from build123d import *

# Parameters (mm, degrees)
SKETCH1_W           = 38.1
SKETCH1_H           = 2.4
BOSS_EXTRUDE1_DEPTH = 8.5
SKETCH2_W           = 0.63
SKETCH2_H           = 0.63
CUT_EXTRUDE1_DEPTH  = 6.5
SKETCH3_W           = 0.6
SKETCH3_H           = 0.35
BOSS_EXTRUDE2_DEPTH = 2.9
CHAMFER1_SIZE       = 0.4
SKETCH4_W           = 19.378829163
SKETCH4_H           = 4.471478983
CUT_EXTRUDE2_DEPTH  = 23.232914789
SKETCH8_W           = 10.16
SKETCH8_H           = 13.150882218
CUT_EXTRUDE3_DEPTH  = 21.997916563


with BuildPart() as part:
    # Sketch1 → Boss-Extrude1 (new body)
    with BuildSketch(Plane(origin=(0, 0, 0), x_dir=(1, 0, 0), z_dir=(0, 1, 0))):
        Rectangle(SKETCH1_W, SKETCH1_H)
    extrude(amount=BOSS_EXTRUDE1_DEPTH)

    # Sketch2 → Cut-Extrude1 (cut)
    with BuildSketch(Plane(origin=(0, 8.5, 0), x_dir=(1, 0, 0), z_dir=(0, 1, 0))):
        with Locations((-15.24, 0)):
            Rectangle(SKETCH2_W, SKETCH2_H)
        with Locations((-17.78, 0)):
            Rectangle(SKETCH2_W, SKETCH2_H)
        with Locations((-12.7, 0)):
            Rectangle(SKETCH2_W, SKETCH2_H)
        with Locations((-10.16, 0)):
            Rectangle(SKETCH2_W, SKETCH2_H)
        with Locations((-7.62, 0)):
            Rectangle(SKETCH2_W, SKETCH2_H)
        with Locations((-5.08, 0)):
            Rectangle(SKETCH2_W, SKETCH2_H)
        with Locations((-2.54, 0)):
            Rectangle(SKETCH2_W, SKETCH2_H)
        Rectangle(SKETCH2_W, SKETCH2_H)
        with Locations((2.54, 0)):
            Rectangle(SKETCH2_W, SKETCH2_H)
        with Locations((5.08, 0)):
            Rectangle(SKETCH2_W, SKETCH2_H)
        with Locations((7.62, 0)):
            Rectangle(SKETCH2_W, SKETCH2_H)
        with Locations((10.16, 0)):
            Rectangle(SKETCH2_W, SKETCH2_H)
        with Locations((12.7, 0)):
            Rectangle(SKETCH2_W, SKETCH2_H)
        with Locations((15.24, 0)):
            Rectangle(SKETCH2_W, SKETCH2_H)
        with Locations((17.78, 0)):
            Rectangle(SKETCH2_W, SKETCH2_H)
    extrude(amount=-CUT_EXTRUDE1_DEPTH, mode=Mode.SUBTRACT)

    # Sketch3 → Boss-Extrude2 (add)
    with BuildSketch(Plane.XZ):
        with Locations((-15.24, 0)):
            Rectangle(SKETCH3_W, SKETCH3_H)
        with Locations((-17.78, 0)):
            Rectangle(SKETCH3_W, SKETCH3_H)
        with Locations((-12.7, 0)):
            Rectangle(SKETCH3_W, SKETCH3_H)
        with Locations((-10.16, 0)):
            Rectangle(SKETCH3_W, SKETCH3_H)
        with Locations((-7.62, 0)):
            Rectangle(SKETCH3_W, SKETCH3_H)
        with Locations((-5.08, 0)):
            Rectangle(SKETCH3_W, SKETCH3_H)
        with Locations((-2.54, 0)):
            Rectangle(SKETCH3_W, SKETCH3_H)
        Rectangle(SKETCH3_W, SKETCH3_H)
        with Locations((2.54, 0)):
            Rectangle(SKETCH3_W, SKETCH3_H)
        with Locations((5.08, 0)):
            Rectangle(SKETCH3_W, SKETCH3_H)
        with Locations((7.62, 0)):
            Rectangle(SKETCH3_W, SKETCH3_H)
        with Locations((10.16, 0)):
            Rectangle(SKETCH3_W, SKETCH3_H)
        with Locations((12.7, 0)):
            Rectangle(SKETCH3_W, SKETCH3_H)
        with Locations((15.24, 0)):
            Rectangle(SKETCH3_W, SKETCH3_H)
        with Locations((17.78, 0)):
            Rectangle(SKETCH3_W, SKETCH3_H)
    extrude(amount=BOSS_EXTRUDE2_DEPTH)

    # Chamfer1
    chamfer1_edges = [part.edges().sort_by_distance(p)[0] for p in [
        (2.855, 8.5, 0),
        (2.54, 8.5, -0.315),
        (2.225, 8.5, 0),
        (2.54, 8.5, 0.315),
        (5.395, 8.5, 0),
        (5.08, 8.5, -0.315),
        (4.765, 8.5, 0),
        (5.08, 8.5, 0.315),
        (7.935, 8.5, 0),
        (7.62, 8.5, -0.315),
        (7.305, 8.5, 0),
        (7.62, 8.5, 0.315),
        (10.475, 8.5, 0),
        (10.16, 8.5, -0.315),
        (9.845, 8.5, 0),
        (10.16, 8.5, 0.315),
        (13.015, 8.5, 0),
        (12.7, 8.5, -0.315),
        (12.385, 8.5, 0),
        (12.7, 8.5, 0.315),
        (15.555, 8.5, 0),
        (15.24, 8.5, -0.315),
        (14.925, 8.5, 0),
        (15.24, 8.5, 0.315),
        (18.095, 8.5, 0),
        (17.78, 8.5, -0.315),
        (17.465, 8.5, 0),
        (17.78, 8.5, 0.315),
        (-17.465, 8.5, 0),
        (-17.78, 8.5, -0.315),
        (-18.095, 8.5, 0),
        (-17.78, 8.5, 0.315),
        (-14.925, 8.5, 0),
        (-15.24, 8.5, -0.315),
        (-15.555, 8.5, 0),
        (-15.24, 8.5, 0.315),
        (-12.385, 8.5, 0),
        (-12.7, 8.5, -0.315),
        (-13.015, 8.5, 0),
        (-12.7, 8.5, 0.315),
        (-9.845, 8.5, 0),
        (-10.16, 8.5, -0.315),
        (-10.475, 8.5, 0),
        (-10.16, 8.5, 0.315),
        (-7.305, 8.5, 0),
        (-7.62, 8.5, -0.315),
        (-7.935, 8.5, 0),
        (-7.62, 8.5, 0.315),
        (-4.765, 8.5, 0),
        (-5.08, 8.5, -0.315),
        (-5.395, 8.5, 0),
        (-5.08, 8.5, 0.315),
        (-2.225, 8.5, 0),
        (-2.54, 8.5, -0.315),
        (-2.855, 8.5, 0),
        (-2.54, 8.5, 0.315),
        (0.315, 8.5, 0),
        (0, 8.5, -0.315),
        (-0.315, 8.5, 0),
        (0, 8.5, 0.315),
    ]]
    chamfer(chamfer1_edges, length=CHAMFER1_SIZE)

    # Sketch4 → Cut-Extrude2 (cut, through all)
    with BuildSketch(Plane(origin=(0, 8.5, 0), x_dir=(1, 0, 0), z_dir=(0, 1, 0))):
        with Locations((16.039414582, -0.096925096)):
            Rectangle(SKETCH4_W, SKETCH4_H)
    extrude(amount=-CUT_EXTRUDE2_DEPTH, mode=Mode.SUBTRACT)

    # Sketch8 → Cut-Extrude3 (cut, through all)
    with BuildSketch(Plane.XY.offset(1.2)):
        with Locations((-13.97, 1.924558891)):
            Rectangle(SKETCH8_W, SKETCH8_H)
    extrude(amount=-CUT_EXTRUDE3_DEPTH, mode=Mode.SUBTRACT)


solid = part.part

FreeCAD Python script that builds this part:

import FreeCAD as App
import Part
import Sketcher
from FreeCAD import Vector
Q = App.Units.Quantity


def edges_at(feature, points):
    """Names of the edges that pass closest to the given points."""
    edges = feature.Shape.Edges
    near = lambda p: min(range(len(edges)), key=lambda i: edges[i].distToShape(Part.Vertex(*p))[0])
    return sorted({f"Edge{near(p) + 1}" for p in points})


def add_polygon(sketch, points):
    """Adds a closed chain of lines whose ends are joined by coincident constraints."""
    first, n = sketch.GeometryCount, len(points)
    for a, b in zip(points, points[1:] + points[:1]):
        sketch.addGeometry(Part.LineSegment(App.Vector(*a, 0), App.Vector(*b, 0)), False)
    for i in range(n):
        sketch.addConstraint(Sketcher.Constraint("Coincident", first + i, 2, first + (i + 1) % n, 1))

doc = App.newDocument("Part")
params = doc.addObject("Spreadsheet::Sheet", "Params")
for row, (alias, value) in enumerate([
    ("sketch1_width", "38.1 mm"),
    ("sketch1_height", "2.4 mm"),
    ("pad1_length", "8.5 mm"),
    ("sketch2_width", "0.63 mm"),
    ("pocket1_length", "6.5 mm"),
    ("sketch3_width", "0.6 mm"),
    ("sketch3_height", "0.35 mm"),
    ("pad2_length", "2.9 mm"),
    ("chamfer_size", "0.4 mm"),
    ("sketch5_width", "10.16 mm"),
], start=1):
    params.set(f"A{row}", alias)
    params.set(f"B{row}", "=" + value)
    params.setAlias(f"B{row}", alias)

body = doc.addObject("PartDesign::Body", "Body")

# Sketch on XZ plane
sketch1 = body.newObject("Sketcher::SketchObject", "Sketch")
sketch1.AttachmentSupport = (doc.getObject("XZ_Plane"), [""])
sketch1.MapMode = "FlatFace"
add_polygon(sketch1, [(-19.1, -1.2), (-19.1, 1.2), (19.1, 1.2), (19.1, -1.2)])  # lines 0-3
sketch1.addConstraint(Sketcher.Constraint("Vertical", 0))
sketch1.addConstraint(Sketcher.Constraint("Horizontal", 1))
sketch1.addConstraint(Sketcher.Constraint("Vertical", 2))
sketch1.addConstraint(Sketcher.Constraint("Horizontal", 3))
sketch1.addConstraint(Sketcher.Constraint("Symmetric", 0, 2, 2, 2, -1, 1))
sketch1.addConstraint(Sketcher.Constraint("DistanceX", 1, 1, 1, 2, Q("38.1 mm")))
sketch1.addConstraint(Sketcher.Constraint("DistanceY", 0, 1, 0, 2, Q("2.4 mm")))
sketch1.setExpression("Constraints[9]", "Params.sketch1_width")
sketch1.setExpression("Constraints[10]", "Params.sketch1_height")
pad1 = body.newObject("PartDesign::Pad", "Pad")
pad1.Profile = sketch1
pad1.setExpression("Length", "Params.pad1_length")
pad1.Reversed = True

# Sketch on XZ plane
sketch2 = body.newObject("Sketcher::SketchObject", "Sketch001")
sketch2.AttachmentSupport = (doc.getObject("XZ_Plane"), [""])
sketch2.MapMode = "FlatFace"
sketch2.AttachmentOffset = App.Placement(Vector(0, 0, -8.5), App.Rotation())
add_polygon(sketch2, [(-15.6, -0.3), (-15.6, 0.3), (-14.9, 0.3), (-14.9, -0.3)])  # lines 0-3
add_polygon(sketch2, [(-18.1, -0.3), (-18.1, 0.3), (-17.5, 0.3), (-17.5, -0.3)])  # lines 4-7
add_polygon(sketch2, [(-13, -0.3), (-13, 0.3), (-12.4, 0.3), (-12.4, -0.3)])  # lines 8-11
add_polygon(sketch2, [(-10.5, -0.3), (-10.5, 0.3), (-9.8, 0.3), (-9.8, -0.3)])  # lines 12-15
add_polygon(sketch2, [(-7.9, -0.3), (-7.9, 0.3), (-7.3, 0.3), (-7.3, -0.3)])  # lines 16-19
add_polygon(sketch2, [(-5.4, -0.3), (-5.4, 0.3), (-4.8, 0.3), (-4.8, -0.3)])  # lines 20-23
add_polygon(sketch2, [(-2.9, -0.3), (-2.9, 0.3), (-2.2, 0.3), (-2.2, -0.3)])  # lines 24-27
add_polygon(sketch2, [(-0.3, -0.3), (-0.3, 0.3), (0.3, 0.3), (0.3, -0.3)])  # lines 28-31
add_polygon(sketch2, [(2.2, -0.3), (2.2, 0.3), (2.9, 0.3), (2.9, -0.3)])  # lines 32-35
add_polygon(sketch2, [(4.8, -0.3), (4.8, 0.3), (5.4, 0.3), (5.4, -0.3)])  # lines 36-39
add_polygon(sketch2, [(7.3, -0.3), (7.3, 0.3), (7.9, 0.3), (7.9, -0.3)])  # lines 40-43
add_polygon(sketch2, [(9.8, -0.3), (9.8, 0.3), (10.5, 0.3), (10.5, -0.3)])  # lines 44-47
add_polygon(sketch2, [(12.4, -0.3), (12.4, 0.3), (13, 0.3), (13, -0.3)])  # lines 48-51
add_polygon(sketch2, [(14.9, -0.3), (14.9, 0.3), (15.6, 0.3), (15.6, -0.3)])  # lines 52-55
add_polygon(sketch2, [(17.5, -0.3), (17.5, 0.3), (18.1, 0.3), (18.1, -0.3)])  # lines 56-59
sketch2.addConstraint(Sketcher.Constraint("Vertical", 0))
sketch2.addConstraint(Sketcher.Constraint("Horizontal", 1))
sketch2.addConstraint(Sketcher.Constraint("Vertical", 2))
sketch2.addConstraint(Sketcher.Constraint("Horizontal", 3))
sketch2.addConstraint(Sketcher.Constraint("Vertical", 4))
sketch2.addConstraint(Sketcher.Constraint("Horizontal", 5))
sketch2.addConstraint(Sketcher.Constraint("Vertical", 6))
sketch2.addConstraint(Sketcher.Constraint("Horizontal", 7))
sketch2.addConstraint(Sketcher.Constraint("Vertical", 8))
sketch2.addConstraint(Sketcher.Constraint("Horizontal", 9))
sketch2.addConstraint(Sketcher.Constraint("Vertical", 10))
sketch2.addConstraint(Sketcher.Constraint("Horizontal", 11))
sketch2.addConstraint(Sketcher.Constraint("Vertical", 12))
sketch2.addConstraint(Sketcher.Constraint("Horizontal", 13))
sketch2.addConstraint(Sketcher.Constraint("Vertical", 14))
sketch2.addConstraint(Sketcher.Constraint("Horizontal", 15))
sketch2.addConstraint(Sketcher.Constraint("Vertical", 16))
sketch2.addConstraint(Sketcher.Constraint("Horizontal", 17))
sketch2.addConstraint(Sketcher.Constraint("Vertical", 18))
sketch2.addConstraint(Sketcher.Constraint("Horizontal", 19))
sketch2.addConstraint(Sketcher.Constraint("Vertical", 20))
sketch2.addConstraint(Sketcher.Constraint("Horizontal", 21))
sketch2.addConstraint(Sketcher.Constraint("Vertical", 22))
sketch2.addConstraint(Sketcher.Constraint("Horizontal", 23))
sketch2.addConstraint(Sketcher.Constraint("Vertical", 24))
sketch2.addConstraint(Sketcher.Constraint("Horizontal", 25))
sketch2.addConstraint(Sketcher.Constraint("Vertical", 26))
sketch2.addConstraint(Sketcher.Constraint("Horizontal", 27))
sketch2.addConstraint(Sketcher.Constraint("Vertical", 28))
sketch2.addConstraint(Sketcher.Constraint("Horizontal", 29))
sketch2.addConstraint(Sketcher.Constraint("Vertical", 30))
sketch2.addConstraint(Sketcher.Constraint("Horizontal", 31))
sketch2.addConstraint(Sketcher.Constraint("Vertical", 32))
sketch2.addConstraint(Sketcher.Constraint("Horizontal", 33))
sketch2.addConstraint(Sketcher.Constraint("Vertical", 34))
sketch2.addConstraint(Sketcher.Constraint("Horizontal", 35))
sketch2.addConstraint(Sketcher.Constraint("Vertical", 36))
sketch2.addConstraint(Sketcher.Constraint("Horizontal", 37))
sketch2.addConstraint(Sketcher.Constraint("Vertical", 38))
sketch2.addConstraint(Sketcher.Constraint("Horizontal", 39))
sketch2.addConstraint(Sketcher.Constraint("Vertical", 40))
sketch2.addConstraint(Sketcher.Constraint("Horizontal", 41))
sketch2.addConstraint(Sketcher.Constraint("Vertical", 42))
sketch2.addConstraint(Sketcher.Constraint("Horizontal", 43))
sketch2.addConstraint(Sketcher.Constraint("Vertical", 44))
sketch2.addConstraint(Sketcher.Constraint("Horizontal", 45))
sketch2.addConstraint(Sketcher.Constraint("Vertical", 46))
sketch2.addConstraint(Sketcher.Constraint("Horizontal", 47))
sketch2.addConstraint(Sketcher.Constraint("Vertical", 48))
sketch2.addConstraint(Sketcher.Constraint("Horizontal", 49))
sketch2.addConstraint(Sketcher.Constraint("Vertical", 50))
sketch2.addConstraint(Sketcher.Constraint("Horizontal", 51))
sketch2.addConstraint(Sketcher.Constraint("Vertical", 52))
sketch2.addConstraint(Sketcher.Constraint("Horizontal", 53))
sketch2.addConstraint(Sketcher.Constraint("Vertical", 54))
sketch2.addConstraint(Sketcher.Constraint("Horizontal", 55))
sketch2.addConstraint(Sketcher.Constraint("Vertical", 56))
sketch2.addConstraint(Sketcher.Constraint("Horizontal", 57))
sketch2.addConstraint(Sketcher.Constraint("Vertical", 58))
sketch2.addConstraint(Sketcher.Constraint("Horizontal", 59))
sketch2.addConstraint(Sketcher.Constraint("Symmetric", 28, 2, 30, 2, -1, 1))
sketch2.addConstraint(Sketcher.Constraint("Symmetric", 26, 2, 32, 2, -1, 1))
sketch2.addConstraint(Sketcher.Constraint("Symmetric", 24, 2, 34, 2, -1, 1))
sketch2.addConstraint(Sketcher.Constraint("Symmetric", 22, 2, 36, 2, -1, 1))
sketch2.addConstraint(Sketcher.Constraint("Symmetric", 20, 2, 38, 2, -1, 1))
sketch2.addConstraint(Sketcher.Constraint("Symmetric", 18, 2, 40, 2, -1, 1))
sketch2.addConstraint(Sketcher.Constraint("Symmetric", 16, 2, 42, 2, -1, 1))
sketch2.addConstraint(Sketcher.Constraint("Symmetric", 14, 2, 44, 2, -1, 1))
sketch2.addConstraint(Sketcher.Constraint("Symmetric", 12, 2, 46, 2, -1, 1))
sketch2.addConstraint(Sketcher.Constraint("Symmetric", 10, 2, 48, 2, -1, 1))
sketch2.addConstraint(Sketcher.Constraint("Symmetric", 8, 2, 50, 2, -1, 1))
sketch2.addConstraint(Sketcher.Constraint("Symmetric", 2, 2, 52, 2, -1, 1))
sketch2.addConstraint(Sketcher.Constraint("Symmetric", 0, 2, 54, 2, -1, 1))
sketch2.addConstraint(Sketcher.Constraint("Symmetric", 6, 2, 56, 2, -1, 1))
sketch2.addConstraint(Sketcher.Constraint("Symmetric", 4, 2, 58, 2, -1, 1))
sketch2.addConstraint(Sketcher.Constraint("Horizontal", 1, 2, 4, 2))
sketch2.addConstraint(Sketcher.Constraint("Horizontal", 3, 2, 6, 2))
sketch2.addConstraint(Sketcher.Constraint("Horizontal", 5, 2, 8, 2))
sketch2.addConstraint(Sketcher.Constraint("Horizontal", 7, 2, 10, 2))
sketch2.addConstraint(Sketcher.Constraint("Horizontal", 9, 2, 12, 2))
sketch2.addConstraint(Sketcher.Constraint("Horizontal", 11, 2, 14, 2))
sketch2.addConstraint(Sketcher.Constraint("Horizontal", 13, 2, 16, 2))
sketch2.addConstraint(Sketcher.Constraint("Horizontal", 15, 2, 18, 2))
sketch2.addConstraint(Sketcher.Constraint("Horizontal", 17, 2, 20, 2))
sketch2.addConstraint(Sketcher.Constraint("Horizontal", 19, 2, 22, 2))
sketch2.addConstraint(Sketcher.Constraint("Horizontal", 21, 2, 24, 2))
sketch2.addConstraint(Sketcher.Constraint("Horizontal", 23, 2, 26, 2))
sketch2.addConstraint(Sketcher.Constraint("Horizontal", 25, 2, 28, 2))
sketch2.addConstraint(Sketcher.Constraint("Horizontal", 27, 2, 30, 2))
sketch2.addConstraint(Sketcher.Constraint("Equal", 3, 5))
sketch2.addConstraint(Sketcher.Constraint("Equal", 7, 9))
sketch2.addConstraint(Sketcher.Constraint("Equal", 11, 13))
sketch2.addConstraint(Sketcher.Constraint("Equal", 15, 17))
sketch2.addConstraint(Sketcher.Constraint("Equal", 19, 21))
sketch2.addConstraint(Sketcher.Constraint("Equal", 23, 25))
sketch2.addConstraint(Sketcher.Constraint("Equal", 27, 29))
sketch2.addConstraint(Sketcher.Constraint("Equal", 59, 0))
sketch2.addConstraint(Sketcher.Constraint("DistanceX", 1, 1, 1, 2, Q("0.63 mm")))
sketch2.addConstraint(Sketcher.Constraint("DistanceX", 4, 2, 0, 2, Q("2.54 mm")))
sketch2.addConstraint(Sketcher.Constraint("DistanceX", 1, 2, 8, 2, Q("1.91 mm")))
sketch2.addConstraint(Sketcher.Constraint("DistanceX", 9, 2, 12, 2, Q("1.91 mm")))
sketch2.addConstraint(Sketcher.Constraint("DistanceX", 13, 2, 16, 2, Q("1.91 mm")))
sketch2.addConstraint(Sketcher.Constraint("DistanceX", 17, 2, 20, 2, Q("1.91 mm")))
sketch2.addConstraint(Sketcher.Constraint("DistanceX", 21, 2, 24, 2, Q("1.91 mm")))
sketch2.addConstraint(Sketcher.Constraint("DistanceX", 25, 2, 28, 2, Q("1.91 mm")))
sketch2.setExpression("Constraints[157]", "Params.sketch2_width")
pocket1 = body.newObject("PartDesign::Pocket", "Pocket")
pocket1.Profile = sketch2
pocket1.setExpression("Length", "Params.pocket1_length")
pocket1.Reversed = True

# Sketch on XZ plane
sketch3 = body.newObject("Sketcher::SketchObject", "Sketch002")
sketch3.AttachmentSupport = (doc.getObject("XZ_Plane"), [""])
sketch3.MapMode = "FlatFace"
add_polygon(sketch3, [(-15.54, 0.17), (-15.54, -0.17), (-14.94, -0.17), (-14.94, 0.17)])  # lines 0-3
add_polygon(sketch3, [(-18.08, 0.17), (-18.08, -0.17), (-17.48, -0.17), (-17.48, 0.17)])  # lines 4-7
add_polygon(sketch3, [(-13, 0.17), (-13, -0.17), (-12.4, -0.17), (-12.4, 0.17)])  # lines 8-11
add_polygon(sketch3, [(-10.46, 0.17), (-10.46, -0.17), (-9.86, -0.17), (-9.86, 0.17)])  # lines 12-15
add_polygon(sketch3, [(-7.92, 0.17), (-7.92, -0.17), (-7.32, -0.17), (-7.32, 0.17)])  # lines 16-19
add_polygon(sketch3, [(-5.38, 0.17), (-5.38, -0.17), (-4.78, -0.17), (-4.78, 0.17)])  # lines 20-23
add_polygon(sketch3, [(-2.84, 0.17), (-2.84, -0.17), (-2.24, -0.17), (-2.24, 0.17)])  # lines 24-27
add_polygon(sketch3, [(-0.3, 0.17), (-0.3, -0.17), (0.3, -0.17), (0.3, 0.17)])  # lines 28-31
add_polygon(sketch3, [(2.24, 0.17), (2.24, -0.17), (2.84, -0.17), (2.84, 0.17)])  # lines 32-35
add_polygon(sketch3, [(4.78, 0.17), (4.78, -0.17), (5.38, -0.17), (5.38, 0.17)])  # lines 36-39
add_polygon(sketch3, [(7.32, 0.17), (7.32, -0.17), (7.92, -0.17), (7.92, 0.17)])  # lines 40-43
add_polygon(sketch3, [(9.86, 0.17), (9.86, -0.17), (10.46, -0.17), (10.46, 0.17)])  # lines 44-47
add_polygon(sketch3, [(12.4, 0.17), (12.4, -0.17), (13, -0.17), (13, 0.17)])  # lines 48-51
add_polygon(sketch3, [(14.94, 0.17), (14.94, -0.17), (15.54, -0.17), (15.54, 0.17)])  # lines 52-55
add_polygon(sketch3, [(17.48, 0.17), (17.48, -0.17), (18.08, -0.17), (18.08, 0.17)])  # lines 56-59
sketch3.addConstraint(Sketcher.Constraint("Vertical", 0))
sketch3.addConstraint(Sketcher.Constraint("Horizontal", 1))
sketch3.addConstraint(Sketcher.Constraint("Vertical", 2))
sketch3.addConstraint(Sketcher.Constraint("Horizontal", 3))
sketch3.addConstraint(Sketcher.Constraint("Vertical", 4))
sketch3.addConstraint(Sketcher.Constraint("Horizontal", 5))
sketch3.addConstraint(Sketcher.Constraint("Vertical", 6))
sketch3.addConstraint(Sketcher.Constraint("Horizontal", 7))
sketch3.addConstraint(Sketcher.Constraint("Vertical", 8))
sketch3.addConstraint(Sketcher.Constraint("Horizontal", 9))
sketch3.addConstraint(Sketcher.Constraint("Vertical", 10))
sketch3.addConstraint(Sketcher.Constraint("Horizontal", 11))
sketch3.addConstraint(Sketcher.Constraint("Vertical", 12))
sketch3.addConstraint(Sketcher.Constraint("Horizontal", 13))
sketch3.addConstraint(Sketcher.Constraint("Vertical", 14))
sketch3.addConstraint(Sketcher.Constraint("Horizontal", 15))
sketch3.addConstraint(Sketcher.Constraint("Vertical", 16))
sketch3.addConstraint(Sketcher.Constraint("Horizontal", 17))
sketch3.addConstraint(Sketcher.Constraint("Vertical", 18))
sketch3.addConstraint(Sketcher.Constraint("Horizontal", 19))
sketch3.addConstraint(Sketcher.Constraint("Vertical", 20))
sketch3.addConstraint(Sketcher.Constraint("Horizontal", 21))
sketch3.addConstraint(Sketcher.Constraint("Vertical", 22))
sketch3.addConstraint(Sketcher.Constraint("Horizontal", 23))
sketch3.addConstraint(Sketcher.Constraint("Vertical", 24))
sketch3.addConstraint(Sketcher.Constraint("Horizontal", 25))
sketch3.addConstraint(Sketcher.Constraint("Vertical", 26))
sketch3.addConstraint(Sketcher.Constraint("Horizontal", 27))
sketch3.addConstraint(Sketcher.Constraint("Vertical", 28))
sketch3.addConstraint(Sketcher.Constraint("Horizontal", 29))
sketch3.addConstraint(Sketcher.Constraint("Vertical", 30))
sketch3.addConstraint(Sketcher.Constraint("Horizontal", 31))
sketch3.addConstraint(Sketcher.Constraint("Vertical", 32))
sketch3.addConstraint(Sketcher.Constraint("Horizontal", 33))
sketch3.addConstraint(Sketcher.Constraint("Vertical", 34))
sketch3.addConstraint(Sketcher.Constraint("Horizontal", 35))
sketch3.addConstraint(Sketcher.Constraint("Vertical", 36))
sketch3.addConstraint(Sketcher.Constraint("Horizontal", 37))
sketch3.addConstraint(Sketcher.Constraint("Vertical", 38))
sketch3.addConstraint(Sketcher.Constraint("Horizontal", 39))
sketch3.addConstraint(Sketcher.Constraint("Vertical", 40))
sketch3.addConstraint(Sketcher.Constraint("Horizontal", 41))
sketch3.addConstraint(Sketcher.Constraint("Vertical", 42))
sketch3.addConstraint(Sketcher.Constraint("Horizontal", 43))
sketch3.addConstraint(Sketcher.Constraint("Vertical", 44))
sketch3.addConstraint(Sketcher.Constraint("Horizontal", 45))
sketch3.addConstraint(Sketcher.Constraint("Vertical", 46))
sketch3.addConstraint(Sketcher.Constraint("Horizontal", 47))
sketch3.addConstraint(Sketcher.Constraint("Vertical", 48))
sketch3.addConstraint(Sketcher.Constraint("Horizontal", 49))
sketch3.addConstraint(Sketcher.Constraint("Vertical", 50))
sketch3.addConstraint(Sketcher.Constraint("Horizontal", 51))
sketch3.addConstraint(Sketcher.Constraint("Vertical", 52))
sketch3.addConstraint(Sketcher.Constraint("Horizontal", 53))
sketch3.addConstraint(Sketcher.Constraint("Vertical", 54))
sketch3.addConstraint(Sketcher.Constraint("Horizontal", 55))
sketch3.addConstraint(Sketcher.Constraint("Vertical", 56))
sketch3.addConstraint(Sketcher.Constraint("Horizontal", 57))
sketch3.addConstraint(Sketcher.Constraint("Vertical", 58))
sketch3.addConstraint(Sketcher.Constraint("Horizontal", 59))
sketch3.addConstraint(Sketcher.Constraint("Symmetric", 28, 2, 30, 2, -1, 1))
sketch3.addConstraint(Sketcher.Constraint("Symmetric", 26, 2, 32, 2, -1, 1))
sketch3.addConstraint(Sketcher.Constraint("Symmetric", 24, 2, 34, 2, -1, 1))
sketch3.addConstraint(Sketcher.Constraint("Symmetric", 22, 2, 36, 2, -1, 1))
sketch3.addConstraint(Sketcher.Constraint("Symmetric", 20, 2, 38, 2, -1, 1))
sketch3.addConstraint(Sketcher.Constraint("Symmetric", 18, 2, 40, 2, -1, 1))
sketch3.addConstraint(Sketcher.Constraint("Symmetric", 16, 2, 42, 2, -1, 1))
sketch3.addConstraint(Sketcher.Constraint("Symmetric", 14, 2, 44, 2, -1, 1))
sketch3.addConstraint(Sketcher.Constraint("Symmetric", 12, 2, 46, 2, -1, 1))
sketch3.addConstraint(Sketcher.Constraint("Symmetric", 10, 2, 48, 2, -1, 1))
sketch3.addConstraint(Sketcher.Constraint("Symmetric", 8, 2, 50, 2, -1, 1))
sketch3.addConstraint(Sketcher.Constraint("Symmetric", 2, 2, 52, 2, -1, 1))
sketch3.addConstraint(Sketcher.Constraint("Symmetric", 0, 2, 54, 2, -1, 1))
sketch3.addConstraint(Sketcher.Constraint("Symmetric", 6, 2, 56, 2, -1, 1))
sketch3.addConstraint(Sketcher.Constraint("Symmetric", 4, 2, 58, 2, -1, 1))
sketch3.addConstraint(Sketcher.Constraint("Horizontal", 1, 2, 4, 2))
sketch3.addConstraint(Sketcher.Constraint("Horizontal", 3, 2, 6, 2))
sketch3.addConstraint(Sketcher.Constraint("Horizontal", 5, 2, 8, 2))
sketch3.addConstraint(Sketcher.Constraint("Horizontal", 7, 2, 10, 2))
sketch3.addConstraint(Sketcher.Constraint("Horizontal", 9, 2, 12, 2))
sketch3.addConstraint(Sketcher.Constraint("Horizontal", 11, 2, 14, 2))
sketch3.addConstraint(Sketcher.Constraint("Horizontal", 13, 2, 16, 2))
sketch3.addConstraint(Sketcher.Constraint("Horizontal", 15, 2, 18, 2))
sketch3.addConstraint(Sketcher.Constraint("Horizontal", 17, 2, 20, 2))
sketch3.addConstraint(Sketcher.Constraint("Horizontal", 19, 2, 22, 2))
sketch3.addConstraint(Sketcher.Constraint("Horizontal", 21, 2, 24, 2))
sketch3.addConstraint(Sketcher.Constraint("Horizontal", 23, 2, 26, 2))
sketch3.addConstraint(Sketcher.Constraint("Horizontal", 25, 2, 28, 2))
sketch3.addConstraint(Sketcher.Constraint("Horizontal", 27, 2, 30, 2))
sketch3.addConstraint(Sketcher.Constraint("Equal", 3, 5))
sketch3.addConstraint(Sketcher.Constraint("Equal", 7, 9))
sketch3.addConstraint(Sketcher.Constraint("Equal", 11, 13))
sketch3.addConstraint(Sketcher.Constraint("Equal", 15, 17))
sketch3.addConstraint(Sketcher.Constraint("Equal", 19, 21))
sketch3.addConstraint(Sketcher.Constraint("Equal", 23, 25))
sketch3.addConstraint(Sketcher.Constraint("Equal", 27, 29))
sketch3.addConstraint(Sketcher.Constraint("DistanceX", 1, 1, 1, 2, Q("0.6 mm")))
sketch3.addConstraint(Sketcher.Constraint("DistanceX", 8, 2, -1, 1, Q("13 mm")))
sketch3.addConstraint(Sketcher.Constraint("DistanceY", 0, 2, 0, 1, Q("0.35 mm")))
sketch3.addConstraint(Sketcher.Constraint("DistanceX", 0, 2, -1, 1, Q("15.54 mm")))
sketch3.addConstraint(Sketcher.Constraint("DistanceX", 4, 2, -1, 1, Q("18.08 mm")))
sketch3.addConstraint(Sketcher.Constraint("DistanceX", 12, 2, -1, 1, Q("10.46 mm")))
sketch3.addConstraint(Sketcher.Constraint("DistanceX", 16, 2, -1, 1, Q("7.92 mm")))
sketch3.addConstraint(Sketcher.Constraint("DistanceX", 20, 2, -1, 1, Q("5.38 mm")))
sketch3.addConstraint(Sketcher.Constraint("DistanceX", 24, 2, -1, 1, Q("2.84 mm")))
sketch3.setExpression("Constraints[156]", "Params.sketch3_width")
sketch3.setExpression("Constraints[158]", "Params.sketch3_height")
pad2 = body.newObject("PartDesign::Pad", "Pad001")
pad2.Profile = sketch3
pad2.setExpression("Length", "Params.pad2_length")
doc.recompute()

chamfer = body.newObject("PartDesign::Chamfer", "Chamfer")
chamfer.Base = (pad2, edges_at(pad2, [
    (2.855, 8.5, 0),
    (2.54, 8.5, -0.315),
    (2.225, 8.5, 0),
    (2.54, 8.5, 0.315),
    (5.395, 8.5, 0),
    (5.08, 8.5, -0.315),
    (4.765, 8.5, 0),
    (5.08, 8.5, 0.315),
    (7.935, 8.5, 0),
    (7.62, 8.5, -0.315),
    (7.305, 8.5, 0),
    (7.62, 8.5, 0.315),
    (10.475, 8.5, 0),
    (10.16, 8.5, -0.315),
    (9.845, 8.5, 0),
    (10.16, 8.5, 0.315),
    (13.015, 8.5, 0),
    (12.7, 8.5, -0.315),
    (12.385, 8.5, 0),
    (12.7, 8.5, 0.315),
    (15.555, 8.5, 0),
    (15.24, 8.5, -0.315),
    (14.925, 8.5, 0),
    (15.24, 8.5, 0.315),
    (18.095, 8.5, 0),
    (17.78, 8.5, -0.315),
    (17.465, 8.5, 0),
    (17.78, 8.5, 0.315),
    (-17.465, 8.5, 0),
    (-17.78, 8.5, -0.315),
    (-18.095, 8.5, 0),
    (-17.78, 8.5, 0.315),
    (-14.925, 8.5, 0),
    (-15.24, 8.5, -0.315),
    (-15.555, 8.5, 0),
    (-15.24, 8.5, 0.315),
    (-12.385, 8.5, 0),
    (-12.7, 8.5, -0.315),
    (-13.015, 8.5, 0),
    (-12.7, 8.5, 0.315),
    (-9.845, 8.5, 0),
    (-10.16, 8.5, -0.315),
    (-10.475, 8.5, 0),
    (-10.16, 8.5, 0.315),
    (-7.305, 8.5, 0),
    (-7.62, 8.5, -0.315),
    (-7.935, 8.5, 0),
    (-7.62, 8.5, 0.315),
    (-4.765, 8.5, 0),
    (-5.08, 8.5, -0.315),
    (-5.395, 8.5, 0),
    (-5.08, 8.5, 0.315),
    (-2.225, 8.5, 0),
    (-2.54, 8.5, -0.315),
    (-2.855, 8.5, 0),
    (-2.54, 8.5, 0.315),
    (0.315, 8.5, 0),
    (0, 8.5, -0.315),
    (-0.315, 8.5, 0),
    (0, 8.5, 0.315),
]))
chamfer.setExpression("Size", "Params.chamfer_size")

# Sketch on XZ plane
sketch4 = body.newObject("Sketcher::SketchObject", "Sketch003")
sketch4.AttachmentSupport = (doc.getObject("XZ_Plane"), [""])
sketch4.MapMode = "FlatFace"
sketch4.AttachmentOffset = App.Placement(Vector(0, 0, -8.5), App.Rotation())
add_polygon(sketch4, [(6.3, -2.1), (6.3, 2.3), (25.7, 2.3), (25.7, -2.1)])  # lines 0-3
sketch4.addConstraint(Sketcher.Constraint("Vertical", 0))
sketch4.addConstraint(Sketcher.Constraint("Horizontal", 1))
sketch4.addConstraint(Sketcher.Constraint("Vertical", 2))
sketch4.addConstraint(Sketcher.Constraint("Horizontal", 3))
sketch4.addConstraint(Sketcher.Constraint("DistanceX", -1, 1, 0, 2, Q("6.35 mm")))
sketch4.addConstraint(Sketcher.Constraint("DistanceX", 1, 1, 1, 2, Q("19.378829 mm")))
sketch4.addConstraint(Sketcher.Constraint("DistanceY", 0, 1, 0, 2, Q("4.471479 mm")))
sketch4.addConstraint(Sketcher.Constraint("DistanceY", -1, 1, 0, 2, Q("2.332665 mm")))
pocket2 = body.newObject("PartDesign::Pocket", "Pocket001")
pocket2.Profile = sketch4
pocket2.Type = "ThroughAll"
pocket2.Reversed = True

# Sketch on XY plane
sketch5 = body.newObject("Sketcher::SketchObject", "Sketch004")
sketch5.AttachmentSupport = (doc.getObject("XY_Plane"), [""])
sketch5.MapMode = "FlatFace"
sketch5.AttachmentOffset = App.Placement(Vector(0, 0, 1.2), App.Rotation())
add_polygon(sketch5, [(-19, 8), (-19, -5), (-9, -5), (-9, 8)])  # lines 0-3
sketch5.addConstraint(Sketcher.Constraint("Vertical", 0))
sketch5.addConstraint(Sketcher.Constraint("Horizontal", 1))
sketch5.addConstraint(Sketcher.Constraint("Vertical", 2))
sketch5.addConstraint(Sketcher.Constraint("Horizontal", 3))
sketch5.addConstraint(Sketcher.Constraint("DistanceX", 1, 1, 1, 2, Q("10.16 mm")))
sketch5.addConstraint(Sketcher.Constraint("DistanceY", -1, 1, 2, 2, Q("8.5 mm")))
sketch5.addConstraint(Sketcher.Constraint("DistanceX", 0, 2, -1, 1, Q("19.05 mm")))
sketch5.addConstraint(Sketcher.Constraint("DistanceY", 0, 2, 0, 1, Q("13.150882 mm")))
sketch5.setExpression("Constraints[8]", "Params.sketch5_width")
pocket3 = body.newObject("PartDesign::Pocket", "Pocket002")
pocket3.Profile = sketch5
pocket3.Type = "ThroughAll"

doc.recompute()
